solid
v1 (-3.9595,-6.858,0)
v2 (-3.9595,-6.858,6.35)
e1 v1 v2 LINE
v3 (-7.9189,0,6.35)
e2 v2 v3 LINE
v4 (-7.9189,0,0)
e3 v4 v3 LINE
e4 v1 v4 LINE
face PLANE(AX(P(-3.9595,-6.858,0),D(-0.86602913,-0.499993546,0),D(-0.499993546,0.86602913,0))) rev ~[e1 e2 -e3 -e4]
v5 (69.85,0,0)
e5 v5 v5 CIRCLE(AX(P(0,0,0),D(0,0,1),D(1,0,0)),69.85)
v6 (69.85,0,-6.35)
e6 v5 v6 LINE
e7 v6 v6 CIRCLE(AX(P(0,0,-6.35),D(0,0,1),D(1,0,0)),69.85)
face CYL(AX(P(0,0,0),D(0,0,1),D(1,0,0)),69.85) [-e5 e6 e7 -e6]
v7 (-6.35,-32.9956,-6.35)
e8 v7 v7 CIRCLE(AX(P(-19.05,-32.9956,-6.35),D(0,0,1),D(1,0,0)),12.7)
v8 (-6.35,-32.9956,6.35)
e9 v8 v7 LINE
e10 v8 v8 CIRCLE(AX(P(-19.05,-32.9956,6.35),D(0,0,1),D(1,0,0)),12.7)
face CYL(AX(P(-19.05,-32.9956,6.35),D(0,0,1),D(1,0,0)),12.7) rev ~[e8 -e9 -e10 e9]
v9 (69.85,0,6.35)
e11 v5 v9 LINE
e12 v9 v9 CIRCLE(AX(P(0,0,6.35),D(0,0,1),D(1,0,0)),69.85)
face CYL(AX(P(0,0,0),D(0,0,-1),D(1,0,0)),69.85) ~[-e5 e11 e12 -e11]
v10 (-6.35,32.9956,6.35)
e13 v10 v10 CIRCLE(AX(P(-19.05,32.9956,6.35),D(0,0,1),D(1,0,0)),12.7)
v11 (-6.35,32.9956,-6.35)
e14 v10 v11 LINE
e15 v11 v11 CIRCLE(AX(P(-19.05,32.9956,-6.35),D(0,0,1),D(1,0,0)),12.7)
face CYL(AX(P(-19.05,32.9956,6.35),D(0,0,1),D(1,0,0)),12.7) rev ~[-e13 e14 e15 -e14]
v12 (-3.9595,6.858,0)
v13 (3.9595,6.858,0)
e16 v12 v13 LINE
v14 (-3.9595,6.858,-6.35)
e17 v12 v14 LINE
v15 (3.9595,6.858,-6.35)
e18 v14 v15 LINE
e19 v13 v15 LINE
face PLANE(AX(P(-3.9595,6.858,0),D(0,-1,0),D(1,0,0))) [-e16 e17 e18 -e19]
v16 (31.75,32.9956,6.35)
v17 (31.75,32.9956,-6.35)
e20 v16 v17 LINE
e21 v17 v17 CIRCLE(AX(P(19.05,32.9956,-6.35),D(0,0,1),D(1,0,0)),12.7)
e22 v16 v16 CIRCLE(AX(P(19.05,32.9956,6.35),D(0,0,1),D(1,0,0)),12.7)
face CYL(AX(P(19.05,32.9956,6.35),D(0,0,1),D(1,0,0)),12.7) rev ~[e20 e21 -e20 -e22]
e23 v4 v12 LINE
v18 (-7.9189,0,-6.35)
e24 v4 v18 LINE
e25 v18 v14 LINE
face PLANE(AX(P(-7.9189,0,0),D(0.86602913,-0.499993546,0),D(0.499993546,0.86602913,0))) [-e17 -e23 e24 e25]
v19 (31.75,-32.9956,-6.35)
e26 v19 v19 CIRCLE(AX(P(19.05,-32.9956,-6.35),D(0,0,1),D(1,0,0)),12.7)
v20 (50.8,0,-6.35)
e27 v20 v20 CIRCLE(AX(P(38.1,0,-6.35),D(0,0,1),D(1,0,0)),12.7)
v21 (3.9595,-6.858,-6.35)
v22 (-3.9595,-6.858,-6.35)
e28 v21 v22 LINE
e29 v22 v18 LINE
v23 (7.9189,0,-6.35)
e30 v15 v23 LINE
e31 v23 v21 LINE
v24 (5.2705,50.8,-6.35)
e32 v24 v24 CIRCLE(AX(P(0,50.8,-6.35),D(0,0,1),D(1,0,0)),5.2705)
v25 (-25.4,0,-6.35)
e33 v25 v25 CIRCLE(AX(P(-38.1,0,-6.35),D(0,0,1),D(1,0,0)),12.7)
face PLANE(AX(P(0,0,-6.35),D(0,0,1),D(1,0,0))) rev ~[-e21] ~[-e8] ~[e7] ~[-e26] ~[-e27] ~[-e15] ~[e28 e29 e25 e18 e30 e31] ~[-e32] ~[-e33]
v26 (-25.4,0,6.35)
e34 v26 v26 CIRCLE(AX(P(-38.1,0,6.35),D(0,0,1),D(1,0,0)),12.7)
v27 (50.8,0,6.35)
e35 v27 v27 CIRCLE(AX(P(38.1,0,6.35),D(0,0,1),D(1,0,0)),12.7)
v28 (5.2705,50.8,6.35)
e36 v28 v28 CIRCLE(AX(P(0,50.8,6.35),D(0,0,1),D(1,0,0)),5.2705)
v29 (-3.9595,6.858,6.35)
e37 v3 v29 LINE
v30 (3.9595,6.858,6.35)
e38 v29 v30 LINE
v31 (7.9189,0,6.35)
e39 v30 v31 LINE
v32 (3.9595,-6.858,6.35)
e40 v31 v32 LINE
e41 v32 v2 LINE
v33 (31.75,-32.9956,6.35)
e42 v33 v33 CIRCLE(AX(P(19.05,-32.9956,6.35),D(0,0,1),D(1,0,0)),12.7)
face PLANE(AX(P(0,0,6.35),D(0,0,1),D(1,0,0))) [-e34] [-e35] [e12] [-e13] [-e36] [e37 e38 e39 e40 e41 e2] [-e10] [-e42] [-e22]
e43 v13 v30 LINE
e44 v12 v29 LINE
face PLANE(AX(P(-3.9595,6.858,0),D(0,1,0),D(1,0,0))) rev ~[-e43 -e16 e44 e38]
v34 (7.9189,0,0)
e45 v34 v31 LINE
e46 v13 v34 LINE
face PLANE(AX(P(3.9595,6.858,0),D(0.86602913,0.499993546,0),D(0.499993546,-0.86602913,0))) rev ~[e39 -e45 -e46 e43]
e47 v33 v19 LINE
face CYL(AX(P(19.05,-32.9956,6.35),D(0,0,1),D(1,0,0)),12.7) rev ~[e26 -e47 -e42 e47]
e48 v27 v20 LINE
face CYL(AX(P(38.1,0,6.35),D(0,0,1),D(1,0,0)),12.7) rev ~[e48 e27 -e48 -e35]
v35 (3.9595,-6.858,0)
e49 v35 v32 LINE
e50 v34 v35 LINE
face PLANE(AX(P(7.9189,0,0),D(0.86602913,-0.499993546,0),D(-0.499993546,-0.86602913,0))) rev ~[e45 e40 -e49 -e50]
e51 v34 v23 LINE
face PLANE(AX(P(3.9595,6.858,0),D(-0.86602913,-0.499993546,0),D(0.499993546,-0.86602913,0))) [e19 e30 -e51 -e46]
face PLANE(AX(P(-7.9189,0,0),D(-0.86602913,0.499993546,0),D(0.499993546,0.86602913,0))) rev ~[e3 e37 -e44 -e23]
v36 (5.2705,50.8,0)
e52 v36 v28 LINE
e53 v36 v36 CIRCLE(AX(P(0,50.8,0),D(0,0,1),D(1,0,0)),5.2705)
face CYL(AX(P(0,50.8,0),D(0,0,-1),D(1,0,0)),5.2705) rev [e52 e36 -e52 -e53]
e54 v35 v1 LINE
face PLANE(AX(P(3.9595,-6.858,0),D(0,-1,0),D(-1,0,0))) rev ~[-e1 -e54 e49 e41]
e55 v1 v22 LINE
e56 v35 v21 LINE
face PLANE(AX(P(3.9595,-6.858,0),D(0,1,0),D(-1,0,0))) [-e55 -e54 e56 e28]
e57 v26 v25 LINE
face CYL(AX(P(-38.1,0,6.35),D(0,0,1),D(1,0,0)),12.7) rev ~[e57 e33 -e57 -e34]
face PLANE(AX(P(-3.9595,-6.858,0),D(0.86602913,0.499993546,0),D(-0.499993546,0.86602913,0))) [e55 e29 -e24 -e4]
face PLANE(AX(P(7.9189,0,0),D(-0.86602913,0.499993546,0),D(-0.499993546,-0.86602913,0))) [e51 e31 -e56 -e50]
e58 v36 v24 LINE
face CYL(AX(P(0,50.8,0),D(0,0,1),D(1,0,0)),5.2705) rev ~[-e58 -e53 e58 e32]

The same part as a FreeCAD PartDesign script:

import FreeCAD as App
import Part
import Sketcher
Q = App.Units.Quantity

doc = App.newDocument("Part")
body = doc.addObject("PartDesign::Body", "Body")

# Sketch on XY plane
sketch1 = body.newObject("Sketcher::SketchObject", "Sketch")
sketch1.AttachmentSupport = (doc.getObject("XY_Plane"), [""])
sketch1.MapMode = "FlatFace"
sketch1.addGeometry([
    Part.Circle(App.Vector(0, 0, 0), App.Vector(0, 0, 1), 70),  # 0
    Part.LineSegment(App.Vector(4, 7, 0), App.Vector(8, 0, 0)),  # 1
    Part.LineSegment(App.Vector(8, 0, 0), App.Vector(4, -7, 0)),  # 2
    Part.LineSegment(App.Vector(4, -7, 0), App.Vector(-4, -7, 0)),  # 3
    Part.LineSegment(App.Vector(-4, -7, 0), App.Vector(-8, 0, 0)),  # 4
    Part.LineSegment(App.Vector(-8, 0, 0), App.Vector(-4, 7, 0)),  # 5
    Part.LineSegment(App.Vector(-4, 7, 0), App.Vector(4, 7, 0)),  # 6
    Part.Circle(App.Vector(0, 51, 0), App.Vector(0, 0, 1), 5),  # 7
], False)
sketch1.addConstraint([
    Sketcher.Constraint("Coincident", 1, 2, 2, 1),
    Sketcher.Constraint("Coincident", 2, 2, 3, 1),
    Sketcher.Constraint("Coincident", 3, 2, 4, 1),
    Sketcher.Constraint("Coincident", 4, 2, 5, 1),
    Sketcher.Constraint("Coincident", 5, 2, 6, 1),
    Sketcher.Constraint("Coincident", 6, 2, 1, 1),
    Sketcher.Constraint("Horizontal", 3),
    Sketcher.Constraint("Horizontal", 6),
    Sketcher.Constraint("Coincident", 0, 3, -1, 1),
    Sketcher.Constraint("Symmetric", 1, 2, 4, 2, -1, 1),
    Sketcher.Constraint("Symmetric", 2, 2, 5, 2, -1, 1),
    Sketcher.Constraint("PointOnObject", 7, 3, -2),
    Sketcher.Constraint("PointOnObject", 1, 2, -1),
    Sketcher.Constraint("Parallel", 1, 4),
    Sketcher.Constraint("Vertical", 3, 2, 5, 2),
    Sketcher.Constraint("Diameter", 0, Q("5.5 in")),
    Sketcher.Constraint("Diameter", 7, Q("0.415 in")),
    Sketcher.Constraint("DistanceY", -1, 1, 7, 3, Q("2 in")),
    Sketcher.Constraint("DistanceY", 3, 2, 5, 2, Q("0.54 in")),
    Sketcher.Constraint("Angle", 1, Q("-60.0004 deg")),
    Sketcher.Constraint("DistanceX", 3, 2, 3, 1, 7.919),
])
pad1 = body.newObject("PartDesign::Pad", "Pad")
pad1.Profile = sketch1
pad1.Length = Q("0.5 in")
pad1.Midplane = True

# Sketch on XY plane
sketch2 = body.newObject("Sketcher::SketchObject", "Sketch001")
sketch2.AttachmentSupport = (doc.getObject("XY_Plane"), [""])
sketch2.MapMode = "FlatFace"
sketch2.AttachmentOffset = App.Placement(App.Vector(0, 0, 0.25 * 25.4), App.Rotation())
sketch2.addGeometry([
    Part.Circle(App.Vector(-38, 0, 0), App.Vector(0, 0, 1), 13),  # 0
    Part.Circle(App.Vector(-19, -33, 0), App.Vector(0, 0, 1), 13),  # 1
    Part.Circle(App.Vector(19, -33, 0), App.Vector(0, 0, 1), 13),  # 2
    Part.Circle(App.Vector(38, 0, 0), App.Vector(0, 0, 1), 13),  # 3
    Part.Circle(App.Vector(19, 33, 0), App.Vector(0, 0, 1), 13),  # 4
    Part.Circle(App.Vector(-19, 33, 0), App.Vector(0, 0, 1), 13),  # 5
], False)
sketch2.addConstraint([
    Sketcher.Constraint("Equal", 0, 1),
    Sketcher.Constraint("Equal", 1, 2),
    Sketcher.Constraint("Equal", 2, 3),
    Sketcher.Constraint("Equal", 3, 4),
    Sketcher.Constraint("Equal", 4, 5),
    Sketcher.Constraint("Symmetric", 0, 3, 3, 3, -1, 1),
    Sketcher.Constraint("Symmetric", 1, 3, 4, 3, -1, 1),
    Sketcher.Constraint("Symmetric", 2, 3, 5, 3, -1, 1),
    Sketcher.Constraint("Symmetric", 1, 3, 2, 3, -2),
    Sketcher.Constraint("PointOnObject", 0, 3, -1),
    Sketcher.Constraint("Diameter", 0, Q("1 in")),
    Sketcher.Constraint("DistanceX", 0, 3, -1, 1, Q("1.5 in")),
    Sketcher.Constraint("DistanceX", 1, 3, 2, 3, Q("1.5 in")),
    Sketcher.Constraint("DistanceY", 1, 3, -1, 1, 32.9956),
])
pocket1 = body.newObject("PartDesign::Pocket", "Pocket")
pocket1.Profile = sketch2
pocket1.Type = "ThroughAll"

doc.recompute()
